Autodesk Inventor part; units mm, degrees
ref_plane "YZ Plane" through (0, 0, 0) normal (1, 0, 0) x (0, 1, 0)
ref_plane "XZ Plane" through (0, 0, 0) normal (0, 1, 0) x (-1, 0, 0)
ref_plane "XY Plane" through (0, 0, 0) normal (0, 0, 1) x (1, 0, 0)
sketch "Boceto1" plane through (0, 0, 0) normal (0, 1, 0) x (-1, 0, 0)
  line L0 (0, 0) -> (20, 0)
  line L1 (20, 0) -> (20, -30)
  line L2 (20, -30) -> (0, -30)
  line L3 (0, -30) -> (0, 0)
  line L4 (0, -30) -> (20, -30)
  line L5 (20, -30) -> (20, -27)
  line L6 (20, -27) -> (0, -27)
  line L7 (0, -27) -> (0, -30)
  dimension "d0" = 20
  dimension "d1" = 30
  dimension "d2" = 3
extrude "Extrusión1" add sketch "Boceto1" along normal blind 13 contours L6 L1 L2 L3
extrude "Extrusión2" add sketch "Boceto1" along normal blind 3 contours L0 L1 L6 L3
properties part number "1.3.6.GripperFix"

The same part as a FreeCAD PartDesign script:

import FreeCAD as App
import Part
import Sketcher

V = App.Vector
Q = App.Units.Quantity


def add_polygon(sketch, points):
    """Adds a closed chain of lines whose ends are joined by coincident constraints."""
    first, n = sketch.GeometryCount, len(points)
    for a, b in zip(points, points[1:] + points[:1]):
        sketch.addGeometry(Part.LineSegment(App.Vector(*a, 0), App.Vector(*b, 0)), False)
    for i in range(n):
        sketch.addConstraint(Sketcher.Constraint("Coincident", first + i, 2, first + (i + 1) % n, 1))

doc = App.newDocument("Part")
params = doc.addObject("Spreadsheet::Sheet", "Params")
for row, (alias, value) in enumerate([
    ("pad1_length", "0.511811 in"),
    ("sketch2_height", "1.063 in"),
    ("pad2_length", "0.1181102 in"),
], start=1):
    params.set(f"A{row}", alias)
    params.set(f"B{row}", "=" + value)
    params.setAlias(f"B{row}", alias)

body = doc.addObject("PartDesign::Body", "Body")

sketch1 = doc.addObject("Sketcher::SketchObject", "Sketch")
body.addObject(sketch1)
sketch1.AttachmentSupport = (doc.XZ_Plane, [""])
sketch1.MapMode = "FlatFace"
add_polygon(sketch1, [(-20, -27), (0, -27), (0, -30), (-20, -30)])
sketch1.addConstraint([
    Sketcher.Constraint("Horizontal", 0),
    Sketcher.Constraint("Vertical", 1),
    Sketcher.Constraint("Horizontal", 2),
    Sketcher.Constraint("Vertical", 3),
    Sketcher.Constraint("PointOnObject", 0, 2, -2),
    Sketcher.Constraint("DistanceX", 0, 1, 0, 2, Q("0.7874 in")),
    Sketcher.Constraint("DistanceY", 1, 2, 1, 1, Q("0.1181 in")),
    Sketcher.Constraint("DistanceY", 1, 2, -1, 1, Q("1.1811 in")),
])
pad1 = doc.addObject("PartDesign::Pad", "Pad")
body.addObject(pad1)
pad1.Profile = sketch1
pad1.setExpression("Length", "Params.pad1_length")
pad1.Reversed = True

sketch2 = doc.addObject("Sketcher::SketchObject", "Sketch001")
body.addObject(sketch2)
sketch2.AttachmentSupport = (doc.XZ_Plane, [""])
sketch2.MapMode = "FlatFace"
add_polygon(sketch2, [(-20, 0), (0, 0), (0, -27), (-20, -27)])
sketch2.addConstraint([
    Sketcher.Constraint("Horizontal", 0),
    Sketcher.Constraint("Vertical", 1),
    Sketcher.Constraint("Horizontal", 2),
    Sketcher.Constraint("Vertical", 3),
    Sketcher.Constraint("Coincident", 0, 2, -1, 1),
    Sketcher.Constraint("DistanceX", 0, 1, 0, 2, Q("0.7874 in")),
    Sketcher.Constraint("DistanceY", 1, 2, 1, 1, Q("1.063 in")),
])
sketch2.setExpression("Constraints[10]", "Params.sketch2_height")
pad2 = doc.addObject("PartDesign::Pad", "Pad001")
body.addObject(pad2)
pad2.Profile = sketch2
pad2.setExpression("Length", "Params.pad2_length")
pad2.Reversed = True

doc.recompute()
